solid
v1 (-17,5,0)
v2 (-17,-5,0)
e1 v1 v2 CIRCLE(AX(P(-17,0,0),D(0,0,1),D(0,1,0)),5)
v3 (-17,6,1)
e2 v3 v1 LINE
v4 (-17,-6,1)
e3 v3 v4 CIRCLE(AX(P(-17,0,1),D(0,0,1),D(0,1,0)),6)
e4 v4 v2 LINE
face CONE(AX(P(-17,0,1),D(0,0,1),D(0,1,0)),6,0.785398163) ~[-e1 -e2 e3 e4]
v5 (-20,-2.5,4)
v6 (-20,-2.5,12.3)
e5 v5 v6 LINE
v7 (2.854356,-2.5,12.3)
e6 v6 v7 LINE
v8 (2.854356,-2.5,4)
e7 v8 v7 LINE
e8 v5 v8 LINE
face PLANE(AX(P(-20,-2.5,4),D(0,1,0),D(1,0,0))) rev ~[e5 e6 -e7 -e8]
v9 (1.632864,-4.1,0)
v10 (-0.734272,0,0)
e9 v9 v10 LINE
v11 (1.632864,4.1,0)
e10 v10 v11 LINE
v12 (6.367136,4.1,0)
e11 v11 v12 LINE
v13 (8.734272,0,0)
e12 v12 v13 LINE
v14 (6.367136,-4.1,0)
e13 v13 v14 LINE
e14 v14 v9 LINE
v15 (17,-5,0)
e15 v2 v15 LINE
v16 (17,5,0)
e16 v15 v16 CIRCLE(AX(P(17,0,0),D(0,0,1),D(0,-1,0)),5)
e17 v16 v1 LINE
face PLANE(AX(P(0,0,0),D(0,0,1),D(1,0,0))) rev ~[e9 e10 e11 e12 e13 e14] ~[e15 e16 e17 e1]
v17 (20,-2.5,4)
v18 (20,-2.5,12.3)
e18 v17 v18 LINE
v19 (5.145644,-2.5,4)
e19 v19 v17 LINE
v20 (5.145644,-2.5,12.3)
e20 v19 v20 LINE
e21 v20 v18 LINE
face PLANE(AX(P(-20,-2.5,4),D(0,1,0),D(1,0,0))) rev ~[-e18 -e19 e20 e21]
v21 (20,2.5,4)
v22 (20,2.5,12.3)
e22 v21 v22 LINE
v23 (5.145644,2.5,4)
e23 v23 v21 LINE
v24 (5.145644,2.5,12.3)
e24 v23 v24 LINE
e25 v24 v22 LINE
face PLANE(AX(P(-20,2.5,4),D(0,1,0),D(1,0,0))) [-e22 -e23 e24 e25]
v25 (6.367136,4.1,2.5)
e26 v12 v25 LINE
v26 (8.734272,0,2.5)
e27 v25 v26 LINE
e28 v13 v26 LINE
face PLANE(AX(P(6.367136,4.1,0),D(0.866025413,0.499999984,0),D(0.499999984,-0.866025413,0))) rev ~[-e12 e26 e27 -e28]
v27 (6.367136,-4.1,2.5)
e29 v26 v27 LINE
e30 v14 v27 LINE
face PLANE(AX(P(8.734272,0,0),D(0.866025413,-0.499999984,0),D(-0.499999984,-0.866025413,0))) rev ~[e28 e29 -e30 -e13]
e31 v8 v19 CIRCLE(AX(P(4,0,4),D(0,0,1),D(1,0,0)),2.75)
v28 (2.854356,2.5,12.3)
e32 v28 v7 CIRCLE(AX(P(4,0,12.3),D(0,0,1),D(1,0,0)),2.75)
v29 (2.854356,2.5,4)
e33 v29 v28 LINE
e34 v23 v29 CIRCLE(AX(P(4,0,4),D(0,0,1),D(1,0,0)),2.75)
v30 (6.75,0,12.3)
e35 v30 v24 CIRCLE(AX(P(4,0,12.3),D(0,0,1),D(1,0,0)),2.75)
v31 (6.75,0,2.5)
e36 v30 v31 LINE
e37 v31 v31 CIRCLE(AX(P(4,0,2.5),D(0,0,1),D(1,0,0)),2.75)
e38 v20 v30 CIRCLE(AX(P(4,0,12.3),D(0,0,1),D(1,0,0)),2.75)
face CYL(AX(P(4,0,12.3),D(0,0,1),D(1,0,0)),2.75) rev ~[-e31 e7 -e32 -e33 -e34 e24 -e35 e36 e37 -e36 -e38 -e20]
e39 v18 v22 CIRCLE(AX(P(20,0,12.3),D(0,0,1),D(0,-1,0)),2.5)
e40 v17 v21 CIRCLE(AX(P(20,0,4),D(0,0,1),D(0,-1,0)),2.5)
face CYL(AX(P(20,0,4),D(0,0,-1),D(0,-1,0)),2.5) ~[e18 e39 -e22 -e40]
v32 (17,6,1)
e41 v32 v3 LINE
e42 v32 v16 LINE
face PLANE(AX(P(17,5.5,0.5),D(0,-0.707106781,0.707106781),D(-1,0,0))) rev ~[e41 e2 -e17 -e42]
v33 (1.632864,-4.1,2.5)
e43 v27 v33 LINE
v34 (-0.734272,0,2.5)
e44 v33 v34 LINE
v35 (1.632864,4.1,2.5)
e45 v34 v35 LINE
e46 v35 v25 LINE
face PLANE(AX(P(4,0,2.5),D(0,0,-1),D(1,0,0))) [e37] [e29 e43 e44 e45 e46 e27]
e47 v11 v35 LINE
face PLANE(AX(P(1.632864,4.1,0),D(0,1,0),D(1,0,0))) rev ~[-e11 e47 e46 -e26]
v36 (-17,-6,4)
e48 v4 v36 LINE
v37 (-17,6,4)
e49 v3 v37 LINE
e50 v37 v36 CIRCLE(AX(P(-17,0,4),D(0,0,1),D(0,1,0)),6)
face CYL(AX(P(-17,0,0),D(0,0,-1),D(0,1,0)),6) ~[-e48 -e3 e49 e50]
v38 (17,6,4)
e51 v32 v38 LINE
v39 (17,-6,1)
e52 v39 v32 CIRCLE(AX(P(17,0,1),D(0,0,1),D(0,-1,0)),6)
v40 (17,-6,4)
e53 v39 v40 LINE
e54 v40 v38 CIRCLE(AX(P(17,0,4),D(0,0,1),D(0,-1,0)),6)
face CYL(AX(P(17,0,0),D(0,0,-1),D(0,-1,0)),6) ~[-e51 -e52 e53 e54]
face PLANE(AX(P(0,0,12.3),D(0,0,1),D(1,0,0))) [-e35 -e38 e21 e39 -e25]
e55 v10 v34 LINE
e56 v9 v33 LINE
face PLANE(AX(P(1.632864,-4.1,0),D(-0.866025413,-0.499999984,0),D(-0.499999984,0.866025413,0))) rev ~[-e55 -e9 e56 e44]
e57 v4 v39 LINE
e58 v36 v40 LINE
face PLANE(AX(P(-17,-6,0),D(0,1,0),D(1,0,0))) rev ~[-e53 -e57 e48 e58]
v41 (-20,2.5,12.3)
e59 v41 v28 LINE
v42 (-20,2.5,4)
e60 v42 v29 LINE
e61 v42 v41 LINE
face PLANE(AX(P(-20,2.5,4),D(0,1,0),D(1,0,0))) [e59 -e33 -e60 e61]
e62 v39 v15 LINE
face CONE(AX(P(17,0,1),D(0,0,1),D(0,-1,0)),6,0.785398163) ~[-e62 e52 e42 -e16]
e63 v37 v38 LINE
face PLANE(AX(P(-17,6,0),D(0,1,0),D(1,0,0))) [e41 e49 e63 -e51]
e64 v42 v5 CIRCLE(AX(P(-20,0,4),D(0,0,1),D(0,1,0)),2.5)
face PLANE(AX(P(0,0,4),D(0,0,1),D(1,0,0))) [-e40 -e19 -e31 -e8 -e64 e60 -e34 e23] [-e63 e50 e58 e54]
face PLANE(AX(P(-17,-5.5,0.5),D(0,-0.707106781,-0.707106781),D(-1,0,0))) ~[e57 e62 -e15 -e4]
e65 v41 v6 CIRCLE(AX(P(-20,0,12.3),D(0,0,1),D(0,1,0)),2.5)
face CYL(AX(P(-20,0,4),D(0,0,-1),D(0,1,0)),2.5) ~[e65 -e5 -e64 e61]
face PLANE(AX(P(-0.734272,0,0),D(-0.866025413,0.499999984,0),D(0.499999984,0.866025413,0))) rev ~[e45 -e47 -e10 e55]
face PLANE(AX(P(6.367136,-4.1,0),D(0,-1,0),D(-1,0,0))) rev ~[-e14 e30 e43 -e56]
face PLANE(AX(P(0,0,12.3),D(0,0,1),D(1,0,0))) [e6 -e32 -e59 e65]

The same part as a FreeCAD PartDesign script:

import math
import FreeCAD as App
import Part
import Sketcher

V = App.Vector
Q = App.Units.Quantity


def edges_at(feature, points):
    """Names of the edges that pass closest to the given points."""
    edges = feature.Shape.Edges
    near = lambda p: min(range(len(edges)), key=lambda i: edges[i].distToShape(Part.Vertex(*p))[0])
    return sorted({f"Edge{near(p) + 1}" for p in points})

doc = App.newDocument("Part")
body = doc.addObject("PartDesign::Body", "Body")

sketch1 = body.newObject("Sketcher::SketchObject", "Sketch")
sketch1.AttachmentSupport = (doc.getObject("XY_Plane"), [""])
sketch1.MapMode = "FlatFace"
sketch1.addGeometry([
    Part.ArcOfCircle(Part.Circle(V(-17, 0, 0), V(0, 0, 1), 6), math.radians(90), math.radians(270)),
    Part.LineSegment(V(-17, -6, 0), V(17, -6, 0)),
    Part.ArcOfCircle(Part.Circle(V(17, 0, 0), V(0, 0, 1), 6), math.radians(-90), math.radians(90)),
    Part.LineSegment(V(17, 6, 0), V(-17, 6, 0)),
], False)
sketch1.addConstraint([
    Sketcher.Constraint("Tangent", 0, 2, 1, 1),
    Sketcher.Constraint("Tangent", 1, 2, 2, 1),
    Sketcher.Constraint("Tangent", 2, 2, 3, 1),
    Sketcher.Constraint("Tangent", 3, 2, 0, 1),
    Sketcher.Constraint("Horizontal", 1),
    Sketcher.Constraint("Horizontal", 3),
    Sketcher.Constraint("Symmetric", 0, 3, 2, 3, -1, 1),
    Sketcher.Constraint("Radius", 0, 6.0),
    Sketcher.Constraint("DistanceX", 1, 1, 1, 2, 34.0),
])
pad1 = body.newObject("PartDesign::Pad", "Pad")
pad1.Profile = sketch1
pad1.Length = 4

sketch2 = body.newObject("Sketcher::SketchObject", "Sketch001")
sketch2.AttachmentSupport = (doc.getObject("XY_Plane"), [""])
sketch2.MapMode = "FlatFace"
sketch2.AttachmentOffset = App.Placement(V(0, 0, 4), App.Rotation())
sketch2.addGeometry([
    Part.ArcOfCircle(Part.Circle(V(-20, 0, 0), V(0, 0, 1), 2.5), math.radians(90), math.radians(270)),
    Part.LineSegment(V(-20, -2.5, 0), V(20, -2.5, 0)),
    Part.ArcOfCircle(Part.Circle(V(20, 0, 0), V(0, 0, 1), 2.5), math.radians(-90), math.radians(90)),
    Part.LineSegment(V(20, 2.5, 0), V(-20, 2.5, 0)),
], False)
sketch2.addConstraint([
    Sketcher.Constraint("Tangent", 0, 2, 1, 1),
    Sketcher.Constraint("Tangent", 1, 2, 2, 1),
    Sketcher.Constraint("Tangent", 2, 2, 3, 1),
    Sketcher.Constraint("Tangent", 3, 2, 0, 1),
    Sketcher.Constraint("Horizontal", 1),
    Sketcher.Constraint("Horizontal", 3),
    Sketcher.Constraint("Symmetric", 0, 3, 2, 3, -1, 1),
    Sketcher.Constraint("Radius", 0, 2.5),
    Sketcher.Constraint("DistanceX", 1, 1, 1, 2, 40.0),
])
pad2 = body.newObject("PartDesign::Pad", "Pad001")
pad2.Profile = sketch2
pad2.Length = 8.3

sketch3 = body.newObject("Sketcher::SketchObject", "Sketch002")
sketch3.AttachmentSupport = (doc.getObject("XY_Plane"), [""])
sketch3.MapMode = "FlatFace"
sketch3.AttachmentOffset = App.Placement(V(0, 0, 12.3), App.Rotation())
sketch3.addGeometry(Part.Circle(V(4, 0, 0), V(0, 0, 1), 2.8), False)
sketch3.addConstraint([
    Sketcher.Constraint("PointOnObject", 0, 3, -1),
    Sketcher.Constraint("Diameter", 0, 5.5),
    Sketcher.Constraint("DistanceX", -1, 1, 0, 3, 4.0),
])
pocket1 = body.newObject("PartDesign::Pocket", "Pocket")
pocket1.Profile = sketch3
pocket1.Type = "ThroughAll"

sketch4 = body.newObject("Sketcher::SketchObject", "Sketch003")
sketch4.AttachmentSupport = (doc.getObject("XY_Plane"), [""])
sketch4.MapMode = "FlatFace"
sketch4.addGeometry([
    Part.LineSegment(V(8.7, 0, 0), V(6.4, -4.1, 0)),
    Part.LineSegment(V(6.4, -4.1, 0), V(1.6, -4.1, 0)),
    Part.LineSegment(V(1.6, -4.1, 0), V(-0.7, 0, 0)),
    Part.LineSegment(V(-0.7, 0, 0), V(1.6, 4.1, 0)),
    Part.LineSegment(V(1.6, 4.1, 0), V(6.4, 4.1, 0)),
    Part.LineSegment(V(6.4, 4.1, 0), V(8.7, 0, 0)),
], False)
sketch4.addConstraint([
    Sketcher.Constraint("Coincident", 0, 2, 1, 1),
    Sketcher.Constraint("Coincident", 1, 2, 2, 1),
    Sketcher.Constraint("Coincident", 2, 2, 3, 1),
    Sketcher.Constraint("Coincident", 3, 2, 4, 1),
    Sketcher.Constraint("Coincident", 4, 2, 5, 1),
    Sketcher.Constraint("Coincident", 5, 2, 0, 1),
    Sketcher.Constraint("Horizontal", 1),
    Sketcher.Constraint("Horizontal", 4),
    Sketcher.Constraint("Symmetric", 1, 2, 3, 2, -1),
    Sketcher.Constraint("PointOnObject", 2, 2, -1),
    Sketcher.Constraint("PointOnObject", 5, 2, -1),
    Sketcher.Constraint("Parallel", 0, 3),
    Sketcher.Constraint("Parallel", 2, 5),
    Sketcher.Constraint("Angle", 0, Q("-119.999999 deg")),
    Sketcher.Constraint("DistanceY", 0, 2, -1, 1, 4.1),
    Sketcher.Constraint("DistanceX", 1, 2, 1, 1, 4.734272),
    Sketcher.Constraint("DistanceX", -1, 1, 0, 2, 6.367136),
])
pocket2 = body.newObject("PartDesign::Pocket", "Pocket001")
pocket2.Profile = sketch4
pocket2.Length = 2.5
pocket2.Reversed = True
doc.recompute()

chamfer = body.newObject("PartDesign::Chamfer", "Chamfer")
chamfer.Base = (pocket2, edges_at(pocket2, [(0, -6, 0)]))
chamfer.Size = 1

doc.recompute()
